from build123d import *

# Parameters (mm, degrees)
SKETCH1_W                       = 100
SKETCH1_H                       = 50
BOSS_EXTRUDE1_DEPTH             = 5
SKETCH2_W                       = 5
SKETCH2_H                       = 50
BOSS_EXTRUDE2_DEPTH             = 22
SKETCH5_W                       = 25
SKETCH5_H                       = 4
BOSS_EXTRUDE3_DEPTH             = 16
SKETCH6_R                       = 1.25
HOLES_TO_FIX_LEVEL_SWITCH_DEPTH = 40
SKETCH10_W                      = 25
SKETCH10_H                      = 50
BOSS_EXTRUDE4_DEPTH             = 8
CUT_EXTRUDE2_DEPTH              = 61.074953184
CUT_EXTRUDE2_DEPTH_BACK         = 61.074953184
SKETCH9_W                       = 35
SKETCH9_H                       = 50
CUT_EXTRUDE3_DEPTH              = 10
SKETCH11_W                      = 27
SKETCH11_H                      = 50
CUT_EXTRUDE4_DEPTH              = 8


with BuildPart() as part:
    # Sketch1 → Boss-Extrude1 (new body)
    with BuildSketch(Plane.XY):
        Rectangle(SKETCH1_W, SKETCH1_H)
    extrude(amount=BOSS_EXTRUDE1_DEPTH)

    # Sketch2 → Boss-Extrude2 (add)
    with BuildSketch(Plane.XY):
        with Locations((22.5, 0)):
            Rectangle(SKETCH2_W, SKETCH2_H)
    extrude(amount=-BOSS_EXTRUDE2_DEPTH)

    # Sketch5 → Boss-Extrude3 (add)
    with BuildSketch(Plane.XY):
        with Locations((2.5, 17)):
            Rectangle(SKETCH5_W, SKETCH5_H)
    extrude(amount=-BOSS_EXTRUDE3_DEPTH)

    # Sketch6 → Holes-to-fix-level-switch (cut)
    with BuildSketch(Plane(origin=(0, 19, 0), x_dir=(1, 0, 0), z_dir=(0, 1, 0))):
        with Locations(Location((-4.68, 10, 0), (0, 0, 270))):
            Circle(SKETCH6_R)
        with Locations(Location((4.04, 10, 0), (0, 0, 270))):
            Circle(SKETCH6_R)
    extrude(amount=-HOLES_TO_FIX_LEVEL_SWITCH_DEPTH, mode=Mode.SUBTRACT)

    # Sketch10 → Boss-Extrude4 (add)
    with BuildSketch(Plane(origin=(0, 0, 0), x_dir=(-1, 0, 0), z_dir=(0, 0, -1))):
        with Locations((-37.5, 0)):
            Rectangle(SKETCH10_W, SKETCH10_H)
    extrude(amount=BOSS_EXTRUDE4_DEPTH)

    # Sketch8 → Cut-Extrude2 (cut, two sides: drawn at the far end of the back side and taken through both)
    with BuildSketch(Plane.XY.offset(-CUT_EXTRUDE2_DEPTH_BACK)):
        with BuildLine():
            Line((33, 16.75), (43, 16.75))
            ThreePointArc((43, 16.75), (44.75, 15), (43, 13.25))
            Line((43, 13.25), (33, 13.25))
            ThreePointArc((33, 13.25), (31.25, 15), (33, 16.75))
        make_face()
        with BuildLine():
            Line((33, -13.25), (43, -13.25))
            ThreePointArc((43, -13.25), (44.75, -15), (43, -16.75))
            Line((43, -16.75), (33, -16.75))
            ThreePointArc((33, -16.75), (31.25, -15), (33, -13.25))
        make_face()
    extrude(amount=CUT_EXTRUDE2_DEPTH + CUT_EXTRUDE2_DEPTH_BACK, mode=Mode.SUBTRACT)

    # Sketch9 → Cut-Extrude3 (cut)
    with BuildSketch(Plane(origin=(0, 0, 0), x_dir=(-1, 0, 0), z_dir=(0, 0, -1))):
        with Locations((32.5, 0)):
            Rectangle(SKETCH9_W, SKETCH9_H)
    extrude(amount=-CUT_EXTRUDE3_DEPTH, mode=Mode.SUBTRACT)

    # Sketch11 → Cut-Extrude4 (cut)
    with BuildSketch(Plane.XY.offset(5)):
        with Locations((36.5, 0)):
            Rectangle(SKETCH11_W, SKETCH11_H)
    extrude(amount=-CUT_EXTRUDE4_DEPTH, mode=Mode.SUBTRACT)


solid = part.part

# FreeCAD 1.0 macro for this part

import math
import FreeCAD as App
import Part
import Sketcher

doc = App.newDocument("Part")
body = doc.addObject("PartDesign::Body", "Body")

# Sketch on XY plane
sketch1 = body.newObject("Sketcher::SketchObject", "Sketch")
sketch1.AttachmentSupport = (doc.getObject("XY_Plane"), [""])
sketch1.MapMode = "FlatFace"
sketch1.addGeometry([
    Part.LineSegment(App.Vector(-50, 25, 0), App.Vector(-50, -25, 0)),
    Part.LineSegment(App.Vector(-50, -25, 0), App.Vector(50, -25, 0)),
    Part.LineSegment(App.Vector(50, -25, 0), App.Vector(50, 25, 0)),
    Part.LineSegment(App.Vector(50, 25, 0), App.Vector(-50, 25, 0)),
], False)
sketch1.addConstraint([
    Sketcher.Constraint("Coincident", 0, 2, 1, 1),
    Sketcher.Constraint("Coincident", 1, 2, 2, 1),
    Sketcher.Constraint("Coincident", 2, 2, 3, 1),
    Sketcher.Constraint("Coincident", 3, 2, 0, 1),
    Sketcher.Constraint("Vertical", 0),
    Sketcher.Constraint("Horizontal", 1),
    Sketcher.Constraint("Vertical", 2),
    Sketcher.Constraint("Horizontal", 3),
    Sketcher.Constraint("Symmetric", 0, 2, 2, 2, -1, 1),
    Sketcher.Constraint("DistanceX", 1, 1, 1, 2, 100.0),
    Sketcher.Constraint("DistanceY", 0, 2, 0, 1, 50.0),
])
pad1 = body.newObject("PartDesign::Pad", "Pad")
pad1.Profile = sketch1
pad1.Length = 5

# Sketch on XY plane
sketch2 = body.newObject("Sketcher::SketchObject", "Sketch001")
sketch2.AttachmentSupport = (doc.getObject("XY_Plane"), [""])
sketch2.MapMode = "FlatFace"
sketch2.addGeometry([
    Part.LineSegment(App.Vector(20, 25, 0), App.Vector(20, -25, 0)),
    Part.LineSegment(App.Vector(20, -25, 0), App.Vector(25, -25, 0)),
    Part.LineSegment(App.Vector(25, -25, 0), App.Vector(25, 25, 0)),
    Part.LineSegment(App.Vector(25, 25, 0), App.Vector(20, 25, 0)),
], False)
sketch2.addConstraint([
    Sketcher.Constraint("Coincident", 0, 2, 1, 1),
    Sketcher.Constraint("Coincident", 1, 2, 2, 1),
    Sketcher.Constraint("Coincident", 2, 2, 3, 1),
    Sketcher.Constraint("Coincident", 3, 2, 0, 1),
    Sketcher.Constraint("Vertical", 0),
    Sketcher.Constraint("Horizontal", 1),
    Sketcher.Constraint("Vertical", 2),
    Sketcher.Constraint("Horizontal", 3),
    Sketcher.Constraint("DistanceX", 1, 1, 1, 2, 5.0),
    Sketcher.Constraint("DistanceY", 0, 2, 0, 1, 50.0),
    Sketcher.Constraint("DistanceX", -1, 1, 0, 2, 20.0),
    Sketcher.Constraint("DistanceY", 0, 2, -1, 1, 25.0),
])
pad2 = body.newObject("PartDesign::Pad", "Pad001")
pad2.Profile = sketch2
pad2.Length = 22
pad2.Reversed = True

# Sketch on XY plane
sketch3 = body.newObject("Sketcher::SketchObject", "Sketch002")
sketch3.AttachmentSupport = (doc.getObject("XY_Plane"), [""])
sketch3.MapMode = "FlatFace"
sketch3.addGeometry([
    Part.LineSegment(App.Vector(-10, 19, 0), App.Vector(-10, 15, 0)),
    Part.LineSegment(App.Vector(-10, 15, 0), App.Vector(15, 15, 0)),
    Part.LineSegment(App.Vector(15, 15, 0), App.Vector(15, 19, 0)),
    Part.LineSegment(App.Vector(15, 19, 0), App.Vector(-10, 19, 0)),
], False)
sketch3.addConstraint([
    Sketcher.Constraint("Coincident", 0, 2, 1, 1),
    Sketcher.Constraint("Coincident", 1, 2, 2, 1),
    Sketcher.Constraint("Coincident", 2, 2, 3, 1),
    Sketcher.Constraint("Coincident", 3, 2, 0, 1),
    Sketcher.Constraint("Vertical", 0),
    Sketcher.Constraint("Horizontal", 1),
    Sketcher.Constraint("Vertical", 2),
    Sketcher.Constraint("Horizontal", 3),
    Sketcher.Constraint("DistanceX", 1, 1, 1, 2, 25.0),
    Sketcher.Constraint("DistanceY", 0, 2, 0, 1, 4.0),
    Sketcher.Constraint("DistanceX", 0, 2, -1, 1, 10.0),
    Sketcher.Constraint("DistanceY", -1, 1, 0, 2, 15.0),
])
pad3 = body.newObject("PartDesign::Pad", "Pad002")
pad3.Profile = sketch3
pad3.Length = 16
pad3.Reversed = True

# Sketch on XZ plane
sketch4 = body.newObject("Sketcher::SketchObject", "Sketch003")
sketch4.AttachmentSupport = (doc.getObject("XZ_Plane"), [""])
sketch4.MapMode = "FlatFace"
sketch4.AttachmentOffset = App.Placement(App.Vector(0, 0, -19), App.Rotation())
sketch4.addGeometry([
    Part.Circle(App.Vector(-4.68, -10, 0), App.Vector(0, 0, 1), 1.25),
    Part.Circle(App.Vector(4.04, -10, 0), App.Vector(0, 0, 1), 1.25),
], False)
sketch4.addConstraint([
    Sketcher.Constraint("Equal", 0, 1),
    Sketcher.Constraint("Horizontal", 0, 3, 1, 3),
    Sketcher.Constraint("Diameter", 0, 2.5),
    Sketcher.Constraint("DistanceY", 0, 3, -1, 1, 10.0),
    Sketcher.Constraint("DistanceX", 0, 3, -1, 1, 4.68),
    Sketcher.Constraint("DistanceX", -1, 1, 1, 3, 4.04),
])
pocket1 = body.newObject("PartDesign::Pocket", "Pocket")
pocket1.Profile = sketch4
pocket1.Length = 40
pocket1.Reversed = True

# Sketch on XY plane
sketch5 = body.newObject("Sketcher::SketchObject", "Sketch004")
sketch5.AttachmentSupport = (doc.getObject("XY_Plane"), [""])
sketch5.MapMode = "FlatFace"
sketch5.addGeometry([
    Part.LineSegment(App.Vector(50, 25, 0), App.Vector(50, -25, 0)),
    Part.LineSegment(App.Vector(50, -25, 0), App.Vector(25, -25, 0)),
    Part.LineSegment(App.Vector(25, -25, 0), App.Vector(25, 25, 0)),
    Part.LineSegment(App.Vector(25, 25, 0), App.Vector(50, 25, 0)),
], False)
sketch5.addConstraint([
    Sketcher.Constraint("Coincident", 0, 2, 1, 1),
    Sketcher.Constraint("Coincident", 1, 2, 2, 1),
    Sketcher.Constraint("Coincident", 2, 2, 3, 1),
    Sketcher.Constraint("Coincident", 3, 2, 0, 1),
    Sketcher.Constraint("Vertical", 0),
    Sketcher.Constraint("Horizontal", 1),
    Sketcher.Constraint("Vertical", 2),
    Sketcher.Constraint("Horizontal", 3),
    Sketcher.Constraint("DistanceX", 1, 2, 1, 1, 25.0),
    Sketcher.Constraint("DistanceY", 0, 2, 0, 1, 50.0),
    Sketcher.Constraint("DistanceX", -1, 1, 0, 2, 50.0),
    Sketcher.Constraint("DistanceY", 0, 2, -1, 1, 25.0),
])
pad4 = body.newObject("PartDesign::Pad", "Pad003")
pad4.Profile = sketch5
pad4.Length = 8
pad4.Reversed = True

# Sketch on XY plane
sketch6 = body.newObject("Sketcher::SketchObject", "Sketch005")
sketch6.AttachmentSupport = (doc.getObject("XY_Plane"), [""])
sketch6.MapMode = "FlatFace"
sketch6.addGeometry([
    Part.LineSegment(App.Vector(43, 16.75, 0), App.Vector(33, 16.75, 0)),  # 0
    Part.ArcOfCircle(Part.Circle(App.Vector(33, 15, 0), App.Vector(0, 0, 1), 1.75), math.radians(90), math.radians(270)),  # 1
    Part.LineSegment(App.Vector(33, 13.25, 0), App.Vector(43, 13.25, 0)),  # 2
    Part.ArcOfCircle(Part.Circle(App.Vector(43, 15, 0), App.Vector(0, 0, 1), 1.75), math.radians(-90), math.radians(90)),  # 3
    Part.LineSegment(App.Vector(43, -13.25, 0), App.Vector(33, -13.25, 0)),  # 4
    Part.ArcOfCircle(Part.Circle(App.Vector(33, -15, 0), App.Vector(0, 0, 1), 1.75), math.radians(90), math.radians(270)),  # 5
    Part.LineSegment(App.Vector(33, -16.75, 0), App.Vector(43, -16.75, 0)),  # 6
    Part.ArcOfCircle(Part.Circle(App.Vector(43, -15, 0), App.Vector(0, 0, 1), 1.75), math.radians(-90), math.radians(90)),  # 7
], False)
sketch6.addConstraint([
    Sketcher.Constraint("Tangent", 0, 2, 1, 1),
    Sketcher.Constraint("Tangent", 1, 2, 2, 1),
    Sketcher.Constraint("Tangent", 2, 2, 3, 1),
    Sketcher.Constraint("Tangent", 3, 2, 0, 1),
    Sketcher.Constraint("Tangent", 4, 2, 5, 1),
    Sketcher.Constraint("Tangent", 5, 2, 6, 1),
    Sketcher.Constraint("Tangent", 6, 2, 7, 1),
    Sketcher.Constraint("Tangent", 7, 2, 4, 1),
    Sketcher.Constraint("Horizontal", 0),
    Sketcher.Constraint("Horizontal", 2),
    Sketcher.Constraint("Horizontal", 4),
    Sketcher.Constraint("Horizontal", 6),
    Sketcher.Constraint("Equal", 3, 5),
    Sketcher.Constraint("Symmetric", 1, 3, 5, 3, -1),
    Sketcher.Constraint("Vertical", 3, 3, 7, 3),
    Sketcher.Constraint("DistanceX", 0, 2, 0, 1, 10.0),
    Sketcher.Constraint("Radius", 1, 1.75),
    Sketcher.Constraint("DistanceX", -1, 1, 1, 3, 33.0),
    Sketcher.Constraint("DistanceY", -1, 1, 1, 3, 15.0),
])
pocket2 = body.newObject("PartDesign::Pocket", "Pocket001")
pocket2.Profile = sketch6
pocket2.Type = "ThroughAll"
pocket2.Midplane = True

# Sketch on XY plane
sketch7 = body.newObject("Sketcher::SketchObject", "Sketch006")
sketch7.AttachmentSupport = (doc.getObject("XY_Plane"), [""])
sketch7.MapMode = "FlatFace"
sketch7.addGeometry([
    Part.LineSegment(App.Vector(-15, 25, 0), App.Vector(-15, -25, 0)),
    Part.LineSegment(App.Vector(-15, -25, 0), App.Vector(-50, -25, 0)),
    Part.LineSegment(App.Vector(-50, -25, 0), App.Vector(-50, 25, 0)),
    Part.LineSegment(App.Vector(-50, 25, 0), App.Vector(-15, 25, 0)),
], False)
sketch7.addConstraint([
    Sketcher.Constraint("Coincident", 0, 2, 1, 1),
    Sketcher.Constraint("Coincident", 1, 2, 2, 1),
    Sketcher.Constraint("Coincident", 2, 2, 3, 1),
    Sketcher.Constraint("Coincident", 3, 2, 0, 1),
    Sketcher.Constraint("Vertical", 0),
    Sketcher.Constraint("Horizontal", 1),
    Sketcher.Constraint("Vertical", 2),
    Sketcher.Constraint("Horizontal", 3),
    Sketcher.Constraint("DistanceX", 1, 2, 1, 1, 35.0),
    Sketcher.Constraint("DistanceY", 0, 2, 0, 1, 50.0),
    Sketcher.Constraint("DistanceX", 0, 2, -1, 1, 15.0),
    Sketcher.Constraint("DistanceY", 0, 2, -1, 1, 25.0),
])
pocket3 = body.newObject("PartDesign::Pocket", "Pocket002")
pocket3.Profile = sketch7
pocket3.Length = 10
pocket3.Reversed = True

# Sketch on XY plane
sketch8 = body.newObject("Sketcher::SketchObject", "Sketch007")
sketch8.AttachmentSupport = (doc.getObject("XY_Plane"), [""])
sketch8.MapMode = "FlatFace"
sketch8.AttachmentOffset = App.Placement(App.Vector(0, 0, 5), App.Rotation())
sketch8.addGeometry([
    Part.LineSegment(App.Vector(23, 25, 0), App.Vector(23, -25, 0)),
    Part.LineSegment(App.Vector(23, -25, 0), App.Vector(50, -25, 0)),
    Part.LineSegment(App.Vector(50, -25, 0), App.Vector(50, 25, 0)),
    Part.LineSegment(App.Vector(50, 25, 0), App.Vector(23, 25, 0)),
], False)
sketch8.addConstraint([
    Sketcher.Constraint("Coincident", 0, 2, 1, 1),
    Sketcher.Constraint("Coincident", 1, 2, 2, 1),
    Sketcher.Constraint("Coincident", 2, 2, 3, 1),
    Sketcher.Constraint("Coincident", 3, 2, 0, 1),
    Sketcher.Constraint("Vertical", 0),
    Sketcher.Constraint("Horizontal", 1),
    Sketcher.Constraint("Vertical", 2),
    Sketcher.Constraint("Horizontal", 3),
    Sketcher.Constraint("DistanceX", 1, 1, 1, 2, 27.0),
    Sketcher.Constraint("DistanceY", 0, 2, 0, 1, 50.0),
    Sketcher.Constraint("DistanceX", -1, 1, 0, 2, 23.0),
    Sketcher.Constraint("DistanceY", 0, 2, -1, 1, 25.0),
])
pocket4 = body.newObject("PartDesign::Pocket", "Pocket003")
pocket4.Profile = sketch8
pocket4.Length = 8

doc.recompute()
